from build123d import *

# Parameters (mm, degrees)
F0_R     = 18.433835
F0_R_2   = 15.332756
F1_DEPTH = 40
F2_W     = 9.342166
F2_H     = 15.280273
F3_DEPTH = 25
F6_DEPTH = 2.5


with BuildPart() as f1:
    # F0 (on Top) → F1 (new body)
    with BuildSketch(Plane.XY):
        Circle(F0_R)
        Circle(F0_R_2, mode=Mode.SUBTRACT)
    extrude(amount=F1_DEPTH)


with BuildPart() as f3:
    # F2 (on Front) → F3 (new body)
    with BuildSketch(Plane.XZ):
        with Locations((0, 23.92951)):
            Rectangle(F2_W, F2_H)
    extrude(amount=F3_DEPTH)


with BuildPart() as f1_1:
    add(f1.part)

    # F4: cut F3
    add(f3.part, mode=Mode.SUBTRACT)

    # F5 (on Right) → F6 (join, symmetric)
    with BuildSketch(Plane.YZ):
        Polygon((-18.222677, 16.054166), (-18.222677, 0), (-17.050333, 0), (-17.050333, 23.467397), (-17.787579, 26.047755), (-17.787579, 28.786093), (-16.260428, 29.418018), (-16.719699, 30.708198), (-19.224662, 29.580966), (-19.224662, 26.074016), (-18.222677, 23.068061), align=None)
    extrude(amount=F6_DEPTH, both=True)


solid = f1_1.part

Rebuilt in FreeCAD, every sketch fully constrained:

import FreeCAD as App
import Part
import Sketcher
Q = App.Units.Quantity

doc = App.newDocument("Part")
body = doc.addObject("PartDesign::Body", "Body")

sketch1 = doc.addObject("Sketcher::SketchObject", "Sketch")
body.addObject(sketch1)
sketch1.AttachmentSupport = (doc.XY_Plane, [""])
sketch1.MapMode = "FlatFace"
sketch1.addGeometry([
    Part.Circle(App.Vector(0, 0, 0), App.Vector(0, 0, 1), 18.433835),
    Part.Circle(App.Vector(0, 0, 0), App.Vector(0, 0, 1), 15.332756),
], False)
sketch1.addConstraint([
    Sketcher.Constraint("Coincident", 0, 3, -1, 1),
    Sketcher.Constraint("Coincident", 1, 3, -1, 1),
    Sketcher.Constraint("Diameter", 0, Q("36.86767 mm")),
    Sketcher.Constraint("Diameter", 1, Q("30.665512 mm")),
])
pad1 = doc.addObject("PartDesign::Pad", "Pad")
body.addObject(pad1)
pad1.Profile = sketch1
pad1.Length = 40
body2 = doc.addObject("PartDesign::Body", "Body001")

sketch2 = doc.addObject("Sketcher::SketchObject", "Sketch001")
body2.addObject(sketch2)
sketch2.AttachmentSupport = (doc.getObject("XZ_Plane001"), [""])
sketch2.MapMode = "FlatFace"
sketch2.addGeometry([
    Part.LineSegment(App.Vector(-4.671083, 31.569647, 0), App.Vector(-4.671083, 16.289373, 0)),
    Part.LineSegment(App.Vector(-4.671083, 16.289373, 0), App.Vector(4.671083, 16.289373, 0)),
    Part.LineSegment(App.Vector(4.671083, 16.289373, 0), App.Vector(4.671083, 31.569647, 0)),
    Part.LineSegment(App.Vector(4.671083, 31.569647, 0), App.Vector(-4.671083, 31.569647, 0)),
], False)
sketch2.addConstraint([
    Sketcher.Constraint("Coincident", 0, 2, 1, 1),
    Sketcher.Constraint("Coincident", 1, 2, 2, 1),
    Sketcher.Constraint("Coincident", 2, 2, 3, 1),
    Sketcher.Constraint("Coincident", 3, 2, 0, 1),
    Sketcher.Constraint("Vertical", 0),
    Sketcher.Constraint("Horizontal", 1),
    Sketcher.Constraint("Vertical", 2),
    Sketcher.Constraint("Horizontal", 3),
    Sketcher.Constraint("DistanceX", 1, 1, 1, 2, Q("9.342166 mm")),
    Sketcher.Constraint("DistanceY", 0, 2, 0, 1, Q("15.280273 mm")),
    Sketcher.Constraint("DistanceX", 0, 2, -1, 1, Q("4.671083 mm")),
    Sketcher.Constraint("DistanceY", -1, 1, 0, 2, Q("16.289373 mm")),
])
pad2 = doc.addObject("PartDesign::Pad", "Pad001")
body2.addObject(pad2)
pad2.Profile = sketch2
pad2.Length = 25
doc.recompute()

boolean = doc.addObject("PartDesign::Boolean", "Boolean")
body.addObject(boolean)
boolean.Type = "Cut"
boolean.addObjects([body2])

sketch3 = doc.addObject("Sketcher::SketchObject", "Sketch002")
body.addObject(sketch3)
sketch3.AttachmentSupport = (doc.YZ_Plane, [""])
sketch3.MapMode = "FlatFace"
sketch3.addGeometry([
    Part.LineSegment(App.Vector(-18.222677, 0, 0), App.Vector(-17.050333, 0, 0)),
    Part.LineSegment(App.Vector(-17.050333, 0, 0), App.Vector(-17.050333, 23.467397, 0)),
    Part.LineSegment(App.Vector(-17.050333, 23.467397, 0), App.Vector(-17.787579, 26.047755, 0)),
    Part.LineSegment(App.Vector(-17.787579, 26.047755, 0), App.Vector(-17.787579, 28.786093, 0)),
    Part.LineSegment(App.Vector(-17.787579, 28.786093, 0), App.Vector(-16.260428, 29.418018, 0)),
    Part.LineSegment(App.Vector(-16.260428, 29.418018, 0), App.Vector(-16.719699, 30.708198, 0)),
    Part.LineSegment(App.Vector(-16.719699, 30.708198, 0), App.Vector(-19.224662, 29.580966, 0)),
    Part.LineSegment(App.Vector(-19.224662, 29.580966, 0), App.Vector(-19.224662, 26.074016, 0)),
    Part.LineSegment(App.Vector(-19.224662, 26.074016, 0), App.Vector(-18.222677, 23.068061, 0)),
    Part.LineSegment(App.Vector(-18.222677, 23.068061, 0), App.Vector(-18.222677, 0, 0)),
], False)
sketch3.addConstraint([
    Sketcher.Constraint("Coincident", 0, 2, 1, 1),
    Sketcher.Constraint("Coincident", 1, 2, 2, 1),
    Sketcher.Constraint("Coincident", 2, 2, 3, 1),
    Sketcher.Constraint("Coincident", 3, 2, 4, 1),
    Sketcher.Constraint("Coincident", 4, 2, 5, 1),
    Sketcher.Constraint("Coincident", 5, 2, 6, 1),
    Sketcher.Constraint("Coincident", 6, 2, 7, 1),
    Sketcher.Constraint("Coincident", 7, 2, 8, 1),
    Sketcher.Constraint("Coincident", 8, 2, 9, 1),
    Sketcher.Constraint("Coincident", 9, 2, 0, 1),
    Sketcher.Constraint("Horizontal", 0),
    Sketcher.Constraint("Vertical", 1),
    Sketcher.Constraint("Vertical", 3),
    Sketcher.Constraint("Vertical", 7),
    Sketcher.Constraint("Vertical", 9),
    Sketcher.Constraint("PointOnObject", 0, 2, -1),
    Sketcher.Constraint("DistanceY", 7, 2, 4, 2, Q("3.344002 mm")),
    Sketcher.Constraint("DistanceY", 3, 1, 3, 2, Q("2.738338 mm")),
    Sketcher.Constraint("DistanceY", 7, 2, 7, 1, Q("3.50695 mm")),
    Sketcher.Constraint("DistanceY", 9, 2, 9, 1, Q("23.068061 mm")),
    Sketcher.Constraint("DistanceX", 5, 2, -1, 1, Q("16.719699 mm")),
    Sketcher.Constraint("DistanceY", 1, 2, 5, 2, Q("7.240801 mm")),
    Sketcher.Constraint("Distance", 4, Q("1.652731 mm")),
    Sketcher.Constraint("DistanceX", 0, 1, 0, 2, Q("1.172344 mm")),
    Sketcher.Constraint("DistanceY", 1, 1, 1, 2, Q("23.467397 mm")),
    Sketcher.Constraint("DistanceX", 2, 2, -1, 1, Q("17.787579 mm")),
    Sketcher.Constraint("DistanceX", 4, 2, -1, 1, Q("16.260428 mm")),
    Sketcher.Constraint("DistanceY", -1, 1, 4, 2, Q("29.418018 mm")),
    Sketcher.Constraint("DistanceX", 6, 2, -1, 1, Q("19.224662 mm")),
    Sketcher.Constraint("DistanceX", 6, 2, 1, 2, Q("2.174329 mm")),
])
pad3 = doc.addObject("PartDesign::Pad", "Pad002")
body.addObject(pad3)
pad3.Profile = sketch3
pad3.Length = 5
pad3.Midplane = True

doc.recompute()
